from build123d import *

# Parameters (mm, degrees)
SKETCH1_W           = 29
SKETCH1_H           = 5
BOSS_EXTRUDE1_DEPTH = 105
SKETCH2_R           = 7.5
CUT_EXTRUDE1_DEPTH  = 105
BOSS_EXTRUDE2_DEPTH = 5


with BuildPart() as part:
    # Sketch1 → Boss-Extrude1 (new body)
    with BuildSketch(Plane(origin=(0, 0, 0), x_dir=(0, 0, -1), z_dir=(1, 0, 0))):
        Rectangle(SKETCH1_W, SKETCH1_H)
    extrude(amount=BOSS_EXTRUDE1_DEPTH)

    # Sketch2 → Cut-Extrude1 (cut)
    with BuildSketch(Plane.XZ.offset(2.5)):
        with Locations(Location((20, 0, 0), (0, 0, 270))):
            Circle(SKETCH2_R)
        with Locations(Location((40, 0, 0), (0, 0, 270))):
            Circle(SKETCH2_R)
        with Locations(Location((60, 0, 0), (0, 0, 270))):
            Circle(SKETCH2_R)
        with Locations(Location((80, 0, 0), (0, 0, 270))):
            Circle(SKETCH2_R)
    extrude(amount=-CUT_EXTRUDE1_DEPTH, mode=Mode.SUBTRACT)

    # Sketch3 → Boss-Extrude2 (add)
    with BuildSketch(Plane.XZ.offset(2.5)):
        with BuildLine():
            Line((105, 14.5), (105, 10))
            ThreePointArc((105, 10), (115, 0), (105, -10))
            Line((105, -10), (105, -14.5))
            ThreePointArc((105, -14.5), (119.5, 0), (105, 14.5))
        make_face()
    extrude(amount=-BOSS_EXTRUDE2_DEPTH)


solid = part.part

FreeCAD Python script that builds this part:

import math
import FreeCAD as App
import Part
import Sketcher
Q = App.Units.Quantity


def add_polygon(sketch, points):
    """Adds a closed chain of lines whose ends are joined by coincident constraints."""
    first, n = sketch.GeometryCount, len(points)
    for a, b in zip(points, points[1:] + points[:1]):
        sketch.addGeometry(Part.LineSegment(App.Vector(*a, 0), App.Vector(*b, 0)), False)
    for i in range(n):
        sketch.addConstraint(Sketcher.Constraint("Coincident", first + i, 2, first + (i + 1) % n, 1))

doc = App.newDocument("Part")
body = doc.addObject("PartDesign::Body", "Body")

sketch1 = doc.addObject("Sketcher::SketchObject", "Sketch")
body.addObject(sketch1)
sketch1.AttachmentSupport = (doc.YZ_Plane, [""])
sketch1.MapMode = "FlatFace"
add_polygon(sketch1, [(2, 14), (-2, 14), (-2, -14), (2, -14)])
sketch1.addConstraint([
    Sketcher.Constraint("Horizontal", 0),
    Sketcher.Constraint("Vertical", 1),
    Sketcher.Constraint("Horizontal", 2),
    Sketcher.Constraint("Vertical", 3),
    Sketcher.Constraint("Symmetric", 0, 2, 2, 2, -1, 1),
    Sketcher.Constraint("DistanceX", 0, 2, 0, 1, Q("5 mm")),
    Sketcher.Constraint("DistanceY", 1, 2, 1, 1, Q("29 mm")),
])
pad1 = doc.addObject("PartDesign::Pad", "Pad")
body.addObject(pad1)
pad1.Profile = sketch1
pad1.Length = 105

sketch2 = doc.addObject("Sketcher::SketchObject", "Sketch001")
body.addObject(sketch2)
sketch2.AttachmentSupport = (doc.XZ_Plane, [""])
sketch2.MapMode = "FlatFace"
sketch2.AttachmentOffset = App.Placement(App.Vector(0, 0, 2.5), App.Rotation())
sketch2.addGeometry([
    Part.Circle(App.Vector(20, 0, 0), App.Vector(0, 0, 1), 8),
    Part.Circle(App.Vector(40, 0, 0), App.Vector(0, 0, 1), 8),
    Part.Circle(App.Vector(60, 0, 0), App.Vector(0, 0, 1), 8),
    Part.Circle(App.Vector(80, 0, 0), App.Vector(0, 0, 1), 8),
], False)
sketch2.addConstraint([
    Sketcher.Constraint("Equal", 0, 1),
    Sketcher.Constraint("Equal", 1, 2),
    Sketcher.Constraint("Equal", 2, 3),
    Sketcher.Constraint("PointOnObject", 0, 3, -1),
    Sketcher.Constraint("PointOnObject", 1, 3, -1),
    Sketcher.Constraint("PointOnObject", 2, 3, -1),
    Sketcher.Constraint("PointOnObject", 3, 3, -1),
    Sketcher.Constraint("Diameter", 0, Q("15 mm")),
    Sketcher.Constraint("DistanceX", -1, 1, 0, 3, Q("20 mm")),
    Sketcher.Constraint("DistanceX", -1, 1, 1, 3, Q("40 mm")),
    Sketcher.Constraint("DistanceX", -1, 1, 2, 3, Q("60 mm")),
    Sketcher.Constraint("DistanceX", -1, 1, 3, 3, Q("80 mm")),
])
pocket1 = doc.addObject("PartDesign::Pocket", "Pocket")
body.addObject(pocket1)
pocket1.Profile = sketch2
pocket1.Length = 105

sketch3 = doc.addObject("Sketcher::SketchObject", "Sketch002")
body.addObject(sketch3)
sketch3.AttachmentSupport = (doc.XZ_Plane, [""])
sketch3.MapMode = "FlatFace"
sketch3.AttachmentOffset = App.Placement(App.Vector(0, 0, 2.5), App.Rotation())
sketch3.addGeometry([
    Part.LineSegment(App.Vector(105, 14.5, 0), App.Vector(105, 10, 0)),
    Part.ArcOfCircle(Part.Circle(App.Vector(105, 0, 0), App.Vector(0, 0, 1), 10), math.radians(-90), math.radians(90)),
    Part.LineSegment(App.Vector(105, -10, 0), App.Vector(105, -14.5, 0)),
    Part.ArcOfCircle(Part.Circle(App.Vector(105, 0, 0), App.Vector(0, 0, 1), 14.5), math.radians(-90), math.radians(90)),
], False)
sketch3.addConstraint([
    Sketcher.Constraint("Coincident", 0, 2, 1, 2),
    Sketcher.Constraint("Coincident", 1, 1, 2, 1),
    Sketcher.Constraint("Coincident", 2, 2, 3, 1),
    Sketcher.Constraint("Coincident", 3, 2, 0, 1),
    Sketcher.Constraint("Vertical", 0),
    Sketcher.Constraint("Vertical", 2),
    Sketcher.Constraint("Coincident", 3, 3, 1, 3),
    Sketcher.Constraint("Symmetric", 0, 2, 1, 1, -1),
    Sketcher.Constraint("Vertical", 3, 3, 0, 2),
    Sketcher.Constraint("Radius", 1, Q("10 mm")),
    Sketcher.Constraint("Radius", 3, Q("14.5 mm")),
    Sketcher.Constraint("DistanceX", -1, 1, 1, 3, Q("105 mm")),
])
pad2 = doc.addObject("PartDesign::Pad", "Pad001")
body.addObject(pad2)
pad2.Profile = sketch3
pad2.Length = 5
pad2.Reversed = True

doc.recompute()
